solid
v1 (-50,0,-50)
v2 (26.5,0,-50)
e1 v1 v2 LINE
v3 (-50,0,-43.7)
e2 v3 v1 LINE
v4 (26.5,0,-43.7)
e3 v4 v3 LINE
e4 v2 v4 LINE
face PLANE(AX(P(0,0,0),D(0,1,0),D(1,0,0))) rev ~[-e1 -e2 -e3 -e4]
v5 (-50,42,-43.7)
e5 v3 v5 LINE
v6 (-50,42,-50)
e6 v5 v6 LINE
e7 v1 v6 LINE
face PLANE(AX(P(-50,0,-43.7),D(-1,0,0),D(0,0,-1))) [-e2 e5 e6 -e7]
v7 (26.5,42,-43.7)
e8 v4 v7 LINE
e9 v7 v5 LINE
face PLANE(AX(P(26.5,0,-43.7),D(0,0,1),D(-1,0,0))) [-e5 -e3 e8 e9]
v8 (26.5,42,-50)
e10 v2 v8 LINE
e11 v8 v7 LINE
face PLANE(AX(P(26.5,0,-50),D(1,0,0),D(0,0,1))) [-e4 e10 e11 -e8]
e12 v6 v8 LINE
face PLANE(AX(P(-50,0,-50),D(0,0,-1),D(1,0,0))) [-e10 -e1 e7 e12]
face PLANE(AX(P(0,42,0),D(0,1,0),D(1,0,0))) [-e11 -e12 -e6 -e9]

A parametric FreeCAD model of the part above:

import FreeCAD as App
import Part
import Sketcher
from FreeCAD import Vector


def add_polygon(sketch, points):
    """Adds a closed chain of lines whose ends are joined by coincident constraints."""
    first, n = sketch.GeometryCount, len(points)
    for a, b in zip(points, points[1:] + points[:1]):
        sketch.addGeometry(Part.LineSegment(App.Vector(*a, 0), App.Vector(*b, 0)), False)
    for i in range(n):
        sketch.addConstraint(Sketcher.Constraint("Coincident", first + i, 2, first + (i + 1) % n, 1))

doc = App.newDocument("Part")
body = doc.addObject("PartDesign::Body", "Body")

sketch1 = doc.addObject("Sketcher::SketchObject", "Sketch")
body.addObject(sketch1)
sketch1.AttachmentSupport = (doc.XZ_Plane, [""])
sketch1.MapMode = "FlatFace"
add_polygon(sketch1, [(26.5, -50), (-50, -50), (-50, -43.7), (26.5, -43.7)])
sketch1.addConstraint([
    Sketcher.Constraint("Horizontal", 0),
    Sketcher.Constraint("Vertical", 1),
    Sketcher.Constraint("Horizontal", 2),
    Sketcher.Constraint("Vertical", 3),
    Sketcher.Constraint("DistanceX", 0, 2, 0, 1, 76.5),
    Sketcher.Constraint("DistanceY", 1, 1, 1, 2, 6.3),
    Sketcher.Constraint("DistanceX", 0, 2, -1, 1, 50.0),
    Sketcher.Constraint("DistanceY", 0, 2, -1, 1, 50.0),
])
pad1 = doc.addObject("PartDesign::Pad", "Pad")
body.addObject(pad1)
pad1.Profile = sketch1
pad1.Length = 42
pad1.Reversed = True

doc.recompute()
